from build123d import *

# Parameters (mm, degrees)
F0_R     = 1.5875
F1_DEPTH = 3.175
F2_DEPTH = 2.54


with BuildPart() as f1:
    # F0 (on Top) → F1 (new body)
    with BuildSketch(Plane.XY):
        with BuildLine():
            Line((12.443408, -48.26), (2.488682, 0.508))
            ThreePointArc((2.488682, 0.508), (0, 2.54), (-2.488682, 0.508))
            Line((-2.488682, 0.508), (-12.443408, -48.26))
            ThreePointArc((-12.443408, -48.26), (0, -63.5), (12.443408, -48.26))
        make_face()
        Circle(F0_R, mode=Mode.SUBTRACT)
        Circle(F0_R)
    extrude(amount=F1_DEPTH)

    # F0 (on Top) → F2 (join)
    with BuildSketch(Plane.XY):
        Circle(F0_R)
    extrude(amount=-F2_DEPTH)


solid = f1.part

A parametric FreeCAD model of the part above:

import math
import FreeCAD as App
import Part
import Sketcher
Q = App.Units.Quantity

doc = App.newDocument("Part")
body = doc.addObject("PartDesign::Body", "Body")

sketch1 = doc.addObject("Sketcher::SketchObject", "Sketch")
body.addObject(sketch1)
sketch1.AttachmentSupport = (doc.XY_Plane, [""])
sketch1.MapMode = "FlatFace"
sketch1.addGeometry(Part.LineSegment(App.Vector(12.4, -48.3, 0), App.Vector(2.5, 0.5, 0)), False)
sketch1.addGeometry(Part.ArcOfCircle(Part.Circle(App.Vector(0, 0, 0), App.Vector(0, 0, 1), 2.5), math.radians(12), math.radians(168)), False)
sketch1.addGeometry(Part.LineSegment(App.Vector(-2.5, 0.5, 0), App.Vector(-12.4, -48.3, 0)), False)
sketch1.addGeometry(Part.ArcOfCircle(Part.Circle(App.Vector(0, -50.8, 0), App.Vector(0, 0, 1), 12.7), math.radians(168), math.radians(372)), False)
sketch1.addConstraint(Sketcher.Constraint("Tangent", 0, 2, 1, 1))
sketch1.addConstraint(Sketcher.Constraint("Tangent", 1, 2, 2, 1))
sketch1.addConstraint(Sketcher.Constraint("Tangent", 2, 2, 3, 1))
sketch1.addConstraint(Sketcher.Constraint("Tangent", 3, 2, 0, 1))
sketch1.addConstraint(Sketcher.Constraint("Coincident", 1, 3, -1, 1))
sketch1.addConstraint(Sketcher.Constraint("PointOnObject", 3, 3, -2))
sketch1.addConstraint(Sketcher.Constraint("Radius", 1, Q("0.1 in")))
sketch1.addConstraint(Sketcher.Constraint("Radius", 3, Q("0.5 in")))
sketch1.addConstraint(Sketcher.Constraint("DistanceY", 3, 3, -1, 1, Q("2 in")))
pad1 = doc.addObject("PartDesign::Pad", "Pad")
body.addObject(pad1)
pad1.Profile = sketch1
pad1.Length = Q("0.125 in")

sketch2 = doc.addObject("Sketcher::SketchObject", "Sketch001")
body.addObject(sketch2)
sketch2.AttachmentSupport = (doc.XY_Plane, [""])
sketch2.MapMode = "FlatFace"
sketch2.addGeometry(Part.Circle(App.Vector(0, 0, 0), App.Vector(0, 0, 1), 1.6), False)
sketch2.addConstraint(Sketcher.Constraint("Coincident", 0, 3, -1, 1))
sketch2.addConstraint(Sketcher.Constraint("Diameter", 0, Q("0.125 in")))
pad2 = doc.addObject("PartDesign::Pad", "Pad001")
body.addObject(pad2)
pad2.Profile = sketch2
pad2.Length = Q("0.1 in")
pad2.Reversed = True

doc.recompute()
